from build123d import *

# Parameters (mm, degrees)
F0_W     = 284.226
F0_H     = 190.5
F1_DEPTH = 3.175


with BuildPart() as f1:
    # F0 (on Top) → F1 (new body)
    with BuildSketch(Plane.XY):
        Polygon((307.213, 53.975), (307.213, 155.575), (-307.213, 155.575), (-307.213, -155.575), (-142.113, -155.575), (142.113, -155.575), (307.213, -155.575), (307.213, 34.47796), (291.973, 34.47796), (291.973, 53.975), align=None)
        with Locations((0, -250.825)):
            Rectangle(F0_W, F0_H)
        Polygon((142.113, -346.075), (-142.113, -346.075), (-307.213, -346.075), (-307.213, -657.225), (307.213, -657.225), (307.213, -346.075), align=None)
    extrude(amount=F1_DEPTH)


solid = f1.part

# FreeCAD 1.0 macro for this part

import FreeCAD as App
import Part
import Sketcher
from FreeCAD import Vector
Q = App.Units.Quantity

doc = App.newDocument("Part")
body = doc.addObject("PartDesign::Body", "Body")

sketch1 = body.newObject("Sketcher::SketchObject", "Sketch")
sketch1.AttachmentSupport = (doc.getObject("XY_Plane"), [""])
sketch1.MapMode = "FlatFace"
sketch1.addGeometry(Part.LineSegment(Vector(307, 54, 0), Vector(307, 156, 0)), False)
sketch1.addGeometry(Part.LineSegment(Vector(307, 156, 0), Vector(-307, 156, 0)), False)
sketch1.addGeometry(Part.LineSegment(Vector(-307, 156, 0), Vector(-307, -156, 0)), False)
sketch1.addGeometry(Part.LineSegment(Vector(-307, -156, 0), Vector(-142, -156, 0)), False)
sketch1.addGeometry(Part.LineSegment(Vector(-142, -156, 0), Vector(-142, -346, 0)), False)
sketch1.addGeometry(Part.LineSegment(Vector(-142, -346, 0), Vector(-307, -346, 0)), False)
sketch1.addGeometry(Part.LineSegment(Vector(-307, -346, 0), Vector(-307, -657, 0)), False)
sketch1.addGeometry(Part.LineSegment(Vector(-307, -657, 0), Vector(307, -657, 0)), False)
sketch1.addGeometry(Part.LineSegment(Vector(307, -657, 0), Vector(307, -346, 0)), False)
sketch1.addGeometry(Part.LineSegment(Vector(307, -346, 0), Vector(142, -346, 0)), False)
sketch1.addGeometry(Part.LineSegment(Vector(142, -346, 0), Vector(142, -156, 0)), False)
sketch1.addGeometry(Part.LineSegment(Vector(142, -156, 0), Vector(307, -156, 0)), False)
sketch1.addGeometry(Part.LineSegment(Vector(307, -156, 0), Vector(307, 34, 0)), False)
sketch1.addGeometry(Part.LineSegment(Vector(307, 34, 0), Vector(292, 34, 0)), False)
sketch1.addGeometry(Part.LineSegment(Vector(292, 34, 0), Vector(292, 54, 0)), False)
sketch1.addGeometry(Part.LineSegment(Vector(292, 54, 0), Vector(307, 54, 0)), False)
sketch1.addConstraint(Sketcher.Constraint("Coincident", 0, 2, 1, 1))
sketch1.addConstraint(Sketcher.Constraint("Coincident", 1, 2, 2, 1))
sketch1.addConstraint(Sketcher.Constraint("Coincident", 2, 2, 3, 1))
sketch1.addConstraint(Sketcher.Constraint("Coincident", 3, 2, 4, 1))
sketch1.addConstraint(Sketcher.Constraint("Coincident", 4, 2, 5, 1))
sketch1.addConstraint(Sketcher.Constraint("Coincident", 5, 2, 6, 1))
sketch1.addConstraint(Sketcher.Constraint("Coincident", 6, 2, 7, 1))
sketch1.addConstraint(Sketcher.Constraint("Coincident", 7, 2, 8, 1))
sketch1.addConstraint(Sketcher.Constraint("Coincident", 8, 2, 9, 1))
sketch1.addConstraint(Sketcher.Constraint("Coincident", 9, 2, 10, 1))
sketch1.addConstraint(Sketcher.Constraint("Coincident", 10, 2, 11, 1))
sketch1.addConstraint(Sketcher.Constraint("Coincident", 11, 2, 12, 1))
sketch1.addConstraint(Sketcher.Constraint("Coincident", 12, 2, 13, 1))
sketch1.addConstraint(Sketcher.Constraint("Coincident", 13, 2, 14, 1))
sketch1.addConstraint(Sketcher.Constraint("Coincident", 14, 2, 15, 1))
sketch1.addConstraint(Sketcher.Constraint("Coincident", 15, 2, 0, 1))
sketch1.addConstraint(Sketcher.Constraint("Vertical", 0))
sketch1.addConstraint(Sketcher.Constraint("Horizontal", 1))
sketch1.addConstraint(Sketcher.Constraint("Vertical", 2))
sketch1.addConstraint(Sketcher.Constraint("Horizontal", 3))
sketch1.addConstraint(Sketcher.Constraint("Vertical", 4))
sketch1.addConstraint(Sketcher.Constraint("Horizontal", 5))
sketch1.addConstraint(Sketcher.Constraint("Vertical", 6))
sketch1.addConstraint(Sketcher.Constraint("Horizontal", 7))
sketch1.addConstraint(Sketcher.Constraint("Vertical", 8))
sketch1.addConstraint(Sketcher.Constraint("Horizontal", 9))
sketch1.addConstraint(Sketcher.Constraint("Vertical", 10))
sketch1.addConstraint(Sketcher.Constraint("Horizontal", 11))
sketch1.addConstraint(Sketcher.Constraint("Vertical", 12))
sketch1.addConstraint(Sketcher.Constraint("Horizontal", 13))
sketch1.addConstraint(Sketcher.Constraint("Vertical", 14))
sketch1.addConstraint(Sketcher.Constraint("Horizontal", 15))
sketch1.addConstraint(Sketcher.Constraint("Symmetric", 0, 2, 2, 2, -1, 1))
sketch1.addConstraint(Sketcher.Constraint("Symmetric", 1, 2, 11, 2, -1, 1))
sketch1.addConstraint(Sketcher.Constraint("Symmetric", 5, 2, 8, 2, -2))
sketch1.addConstraint(Sketcher.Constraint("Vertical", 2, 2, 5, 2))
sketch1.addConstraint(Sketcher.Constraint("Equal", 5, 9))
sketch1.addConstraint(Sketcher.Constraint("Equal", 2, 6))
sketch1.addConstraint(Sketcher.Constraint("DistanceY", 0, 1, 0, 2, Q("4 in")))
sketch1.addConstraint(Sketcher.Constraint("DistanceX", 3, 1, 3, 2, Q("6.5 in")))
sketch1.addConstraint(Sketcher.Constraint("DistanceX", 13, 2, 13, 1, Q("0.6 in")))
sketch1.addConstraint(Sketcher.Constraint("DistanceY", 4, 2, 4, 1, Q("7.5 in")))
sketch1.addConstraint(Sketcher.Constraint("DistanceY", 6, 2, 1, 2, Q("32 in")))
sketch1.addConstraint(Sketcher.Constraint("DistanceX", 1, 2, 1, 1, Q("24.19 in")))
sketch1.addConstraint(Sketcher.Constraint("DistanceY", 12, 1, 12, 2, Q("7.4824 in")))
pad1 = body.newObject("PartDesign::Pad", "Pad")
pad1.Profile = sketch1
pad1.Length = Q("0.125 in")

doc.recompute()
